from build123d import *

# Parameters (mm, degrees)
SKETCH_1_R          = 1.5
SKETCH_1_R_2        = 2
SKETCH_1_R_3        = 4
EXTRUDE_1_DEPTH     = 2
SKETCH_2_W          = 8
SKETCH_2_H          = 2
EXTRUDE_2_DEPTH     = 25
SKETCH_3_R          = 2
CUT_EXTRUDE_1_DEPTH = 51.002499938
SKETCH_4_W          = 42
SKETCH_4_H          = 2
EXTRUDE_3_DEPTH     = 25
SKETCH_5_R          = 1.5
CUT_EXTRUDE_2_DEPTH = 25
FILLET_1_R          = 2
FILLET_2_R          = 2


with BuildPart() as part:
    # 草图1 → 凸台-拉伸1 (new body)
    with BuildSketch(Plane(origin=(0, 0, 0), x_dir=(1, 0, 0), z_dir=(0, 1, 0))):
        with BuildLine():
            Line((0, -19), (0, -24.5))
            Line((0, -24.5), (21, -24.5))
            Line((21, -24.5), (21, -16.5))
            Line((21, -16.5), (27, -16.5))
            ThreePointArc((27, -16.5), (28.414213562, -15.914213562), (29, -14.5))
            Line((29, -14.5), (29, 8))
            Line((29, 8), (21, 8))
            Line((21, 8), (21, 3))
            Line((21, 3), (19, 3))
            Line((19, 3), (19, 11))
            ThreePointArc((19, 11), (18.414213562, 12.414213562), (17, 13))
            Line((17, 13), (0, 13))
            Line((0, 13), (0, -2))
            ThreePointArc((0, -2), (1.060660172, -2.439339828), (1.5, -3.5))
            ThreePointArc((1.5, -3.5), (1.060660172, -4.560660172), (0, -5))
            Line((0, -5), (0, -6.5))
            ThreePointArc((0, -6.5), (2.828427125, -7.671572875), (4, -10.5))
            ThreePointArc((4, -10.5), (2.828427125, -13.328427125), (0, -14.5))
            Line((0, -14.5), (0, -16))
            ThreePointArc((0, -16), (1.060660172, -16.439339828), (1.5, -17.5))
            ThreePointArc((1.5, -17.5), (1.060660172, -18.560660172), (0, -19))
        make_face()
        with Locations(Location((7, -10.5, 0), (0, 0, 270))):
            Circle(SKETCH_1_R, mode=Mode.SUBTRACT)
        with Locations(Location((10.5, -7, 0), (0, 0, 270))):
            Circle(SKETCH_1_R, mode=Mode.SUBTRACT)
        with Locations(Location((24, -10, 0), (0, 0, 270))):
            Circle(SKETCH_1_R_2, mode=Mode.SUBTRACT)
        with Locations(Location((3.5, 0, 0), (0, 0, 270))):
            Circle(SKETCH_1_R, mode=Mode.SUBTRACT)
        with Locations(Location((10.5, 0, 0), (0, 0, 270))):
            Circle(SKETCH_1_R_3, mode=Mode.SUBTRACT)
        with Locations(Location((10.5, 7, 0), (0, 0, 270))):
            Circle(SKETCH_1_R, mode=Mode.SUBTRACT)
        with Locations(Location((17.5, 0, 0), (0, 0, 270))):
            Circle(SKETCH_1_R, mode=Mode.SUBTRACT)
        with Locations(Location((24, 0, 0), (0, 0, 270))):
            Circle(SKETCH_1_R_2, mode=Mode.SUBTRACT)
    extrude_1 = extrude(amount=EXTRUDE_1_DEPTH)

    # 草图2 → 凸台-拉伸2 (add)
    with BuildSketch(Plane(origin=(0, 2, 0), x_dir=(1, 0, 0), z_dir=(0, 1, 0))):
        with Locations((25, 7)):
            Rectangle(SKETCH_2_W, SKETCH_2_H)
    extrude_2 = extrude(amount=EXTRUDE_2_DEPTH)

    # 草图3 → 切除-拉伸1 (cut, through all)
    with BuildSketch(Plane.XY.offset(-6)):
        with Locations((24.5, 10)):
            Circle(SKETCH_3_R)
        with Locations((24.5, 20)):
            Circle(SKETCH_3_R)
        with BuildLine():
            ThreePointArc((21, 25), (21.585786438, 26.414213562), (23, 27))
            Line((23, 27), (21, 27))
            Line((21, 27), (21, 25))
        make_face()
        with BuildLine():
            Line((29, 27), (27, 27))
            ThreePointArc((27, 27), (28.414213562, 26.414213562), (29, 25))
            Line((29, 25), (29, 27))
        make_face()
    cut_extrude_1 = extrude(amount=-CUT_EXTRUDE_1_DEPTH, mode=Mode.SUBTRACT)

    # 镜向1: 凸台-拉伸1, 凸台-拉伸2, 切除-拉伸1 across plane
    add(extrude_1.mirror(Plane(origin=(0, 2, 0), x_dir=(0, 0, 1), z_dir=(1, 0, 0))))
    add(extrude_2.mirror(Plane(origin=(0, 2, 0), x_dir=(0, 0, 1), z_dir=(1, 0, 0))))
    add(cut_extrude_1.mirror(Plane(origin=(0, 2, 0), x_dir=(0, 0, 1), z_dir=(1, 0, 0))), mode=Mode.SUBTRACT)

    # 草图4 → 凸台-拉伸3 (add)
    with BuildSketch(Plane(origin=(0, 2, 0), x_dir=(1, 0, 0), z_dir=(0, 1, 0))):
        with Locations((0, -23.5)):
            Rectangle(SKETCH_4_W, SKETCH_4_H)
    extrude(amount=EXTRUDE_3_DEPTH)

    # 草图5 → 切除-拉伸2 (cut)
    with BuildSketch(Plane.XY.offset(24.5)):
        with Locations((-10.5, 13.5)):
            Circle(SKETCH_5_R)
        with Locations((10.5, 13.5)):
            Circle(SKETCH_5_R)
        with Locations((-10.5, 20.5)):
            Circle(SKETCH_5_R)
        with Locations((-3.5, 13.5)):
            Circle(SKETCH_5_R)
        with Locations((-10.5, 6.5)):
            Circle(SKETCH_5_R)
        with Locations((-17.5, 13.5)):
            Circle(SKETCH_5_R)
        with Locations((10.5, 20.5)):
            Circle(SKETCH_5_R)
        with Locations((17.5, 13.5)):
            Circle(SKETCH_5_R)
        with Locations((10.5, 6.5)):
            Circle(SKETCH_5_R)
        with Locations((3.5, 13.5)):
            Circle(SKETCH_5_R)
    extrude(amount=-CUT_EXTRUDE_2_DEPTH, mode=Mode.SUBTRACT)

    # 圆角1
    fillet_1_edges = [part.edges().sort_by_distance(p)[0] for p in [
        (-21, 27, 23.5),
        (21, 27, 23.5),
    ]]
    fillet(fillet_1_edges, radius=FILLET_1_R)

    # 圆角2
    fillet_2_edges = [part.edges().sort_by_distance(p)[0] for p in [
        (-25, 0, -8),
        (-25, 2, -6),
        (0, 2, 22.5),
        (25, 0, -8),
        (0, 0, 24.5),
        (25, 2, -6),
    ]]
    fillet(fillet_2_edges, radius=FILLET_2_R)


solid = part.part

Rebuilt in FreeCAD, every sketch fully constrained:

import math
import FreeCAD as App
import Part
import Sketcher
from FreeCAD import Vector
Q = App.Units.Quantity


def edges_at(feature, points):
    """Names of the edges that pass closest to the given points."""
    edges = feature.Shape.Edges
    near = lambda p: min(range(len(edges)), key=lambda i: edges[i].distToShape(Part.Vertex(*p))[0])
    return sorted({f"Edge{near(p) + 1}" for p in points})

doc = App.newDocument("Part")
params = doc.addObject("Spreadsheet::Sheet", "Params")
for row, (alias, value) in enumerate([
    ("sketch1_diameter", "3 mm"),
    ("sketch1_diameter2", "4 mm"),
    ("sketch1_diameter3", "8 mm"),
    ("sketch1_width", "21 mm"),
    ("sketch1_width2", "6 mm"),
    ("pad1_length", "2 mm"),
    ("sketch2_width", "8 mm"),
    ("sketch2_height", "2 mm"),
    ("pad2_length", "25 mm"),
    ("sketch3_diameter", "4 mm"),
    ("sketch4_width", "42 mm"),
    ("sketch4_height", "2 mm"),
    ("pad3_length", "25 mm"),
    ("sketch5_diameter", "3 mm"),
    ("pocket2_length", "25 mm"),
    ("fillet_radius", "2 mm"),
    ("fillet2_radius", "2 mm"),
], start=1):
    params.set(f"A{row}", alias)
    params.set(f"B{row}", "=" + value)
    params.setAlias(f"B{row}", alias)

body = doc.addObject("PartDesign::Body", "Body")

# Sketch on XZ plane
sketch1 = body.newObject("Sketcher::SketchObject", "Sketch")
sketch1.AttachmentSupport = (doc.getObject("XZ_Plane"), [""])
sketch1.MapMode = "FlatFace"
sketch1.addGeometry([
    Part.LineSegment(Vector(0, 19, 0), Vector(0, 24.5, 0)),  # 0
    Part.LineSegment(Vector(0, 24.5, 0), Vector(21, 24.5, 0)),  # 1
    Part.LineSegment(Vector(21, 24.5, 0), Vector(21, 16.5, 0)),  # 2
    Part.LineSegment(Vector(21, 16.5, 0), Vector(27, 16.5, 0)),  # 3
    Part.ArcOfCircle(Part.Circle(Vector(27, 14.5, 0), Vector(0, 0, 1), 2), math.radians(0), math.radians(90)),  # 4
    Part.LineSegment(Vector(29, 14.5, 0), Vector(29, -8, 0)),  # 5
    Part.LineSegment(Vector(29, -8, 0), Vector(21, -8, 0)),  # 6
    Part.LineSegment(Vector(21, -8, 0), Vector(21, -3, 0)),  # 7
    Part.LineSegment(Vector(21, -3, 0), Vector(19, -3, 0)),  # 8
    Part.LineSegment(Vector(19, -3, 0), Vector(19, -11, 0)),  # 9
    Part.ArcOfCircle(Part.Circle(Vector(17, -11, 0), Vector(0, 0, 1), 2), math.radians(-90), math.radians(0)),  # 10
    Part.LineSegment(Vector(17, -13, 0), Vector(0, -13, 0)),  # 11
    Part.LineSegment(Vector(0, -13, 0), Vector(0, 2, 0)),  # 12
    Part.ArcOfCircle(Part.Circle(Vector(0, 3.5, 0), Vector(0, 0, 1), 1.5), math.radians(-90), math.radians(0)),  # 13
    Part.ArcOfCircle(Part.Circle(Vector(0, 3.5, 0), Vector(0, 0, 1), 1.5), math.radians(0), math.radians(90)),  # 14
    Part.LineSegment(Vector(0, 5, 0), Vector(0, 6.5, 0)),  # 15
    Part.ArcOfCircle(Part.Circle(Vector(0, 10.5, 0), Vector(0, 0, 1), 4), math.radians(-90), math.radians(0)),  # 16
    Part.ArcOfCircle(Part.Circle(Vector(0, 10.5, 0), Vector(0, 0, 1), 4), math.radians(0), math.radians(90)),  # 17
    Part.LineSegment(Vector(0, 14.5, 0), Vector(0, 16, 0)),  # 18
    Part.ArcOfCircle(Part.Circle(Vector(0, 17.5, 0), Vector(0, 0, 1), 1.5), math.radians(-90), math.radians(0)),  # 19
    Part.ArcOfCircle(Part.Circle(Vector(0, 17.5, 0), Vector(0, 0, 1), 1.5), math.radians(0), math.radians(90)),  # 20
    Part.Circle(Vector(7, 10.5, 0), Vector(0, 0, 1), 1.5),  # 21
    Part.Circle(Vector(10.5, 7, 0), Vector(0, 0, 1), 1.5),  # 22
    Part.Circle(Vector(24, 10, 0), Vector(0, 0, 1), 2),  # 23
    Part.Circle(Vector(3.5, 0, 0), Vector(0, 0, 1), 1.5),  # 24
    Part.Circle(Vector(10.5, 0, 0), Vector(0, 0, 1), 4),  # 25
    Part.Circle(Vector(10.5, -7, 0), Vector(0, 0, 1), 1.5),  # 26
    Part.Circle(Vector(17.5, 0, 0), Vector(0, 0, 1), 1.5),  # 27
    Part.Circle(Vector(24, 0, 0), Vector(0, 0, 1), 2),  # 28
], False)
sketch1.addConstraint([
    Sketcher.Constraint("Coincident", 0, 2, 1, 1),
    Sketcher.Constraint("Coincident", 1, 2, 2, 1),
    Sketcher.Constraint("Coincident", 2, 2, 3, 1),
    Sketcher.Constraint("Tangent", 3, 2, 4, 2),
    Sketcher.Constraint("Tangent", 4, 1, 5, 1),
    Sketcher.Constraint("Coincident", 5, 2, 6, 1),
    Sketcher.Constraint("Coincident", 6, 2, 7, 1),
    Sketcher.Constraint("Coincident", 7, 2, 8, 1),
    Sketcher.Constraint("Coincident", 8, 2, 9, 1),
    Sketcher.Constraint("Tangent", 9, 2, 10, 2),
    Sketcher.Constraint("Tangent", 10, 1, 11, 1),
    Sketcher.Constraint("Coincident", 11, 2, 12, 1),
    Sketcher.Constraint("Coincident", 12, 2, 13, 1),
    Sketcher.Constraint("Tangent", 13, 2, 14, 1),
    Sketcher.Constraint("Coincident", 14, 2, 15, 1),
    Sketcher.Constraint("Coincident", 15, 2, 16, 1),
    Sketcher.Constraint("Tangent", 16, 2, 17, 1),
    Sketcher.Constraint("Coincident", 17, 2, 18, 1),
    Sketcher.Constraint("Coincident", 18, 2, 19, 1),
    Sketcher.Constraint("Tangent", 19, 2, 20, 1),
    Sketcher.Constraint("Coincident", 20, 2, 0, 1),
    Sketcher.Constraint("Vertical", 0),
    Sketcher.Constraint("Horizontal", 1),
    Sketcher.Constraint("Vertical", 2),
    Sketcher.Constraint("Horizontal", 3),
    Sketcher.Constraint("Vertical", 5),
    Sketcher.Constraint("Horizontal", 6),
    Sketcher.Constraint("Vertical", 7),
    Sketcher.Constraint("Horizontal", 8),
    Sketcher.Constraint("Vertical", 9),
    Sketcher.Constraint("Horizontal", 11),
    Sketcher.Constraint("Vertical", 12),
    Sketcher.Constraint("Vertical", 15),
    Sketcher.Constraint("Vertical", 18),
    Sketcher.Constraint("Equal", 4, 10),
    Sketcher.Constraint("Equal", 13, 14),
    Sketcher.Constraint("Equal", 16, 17),
    Sketcher.Constraint("Equal", 14, 19),
    Sketcher.Constraint("Equal", 19, 20),
    Sketcher.Constraint("Equal", 20, 21),
    Sketcher.Constraint("Equal", 21, 22),
    Sketcher.Constraint("Equal", 10, 23),
    Sketcher.Constraint("Equal", 22, 24),
    Sketcher.Constraint("Equal", 17, 25),
    Sketcher.Constraint("Equal", 24, 26),
    Sketcher.Constraint("Equal", 26, 27),
    Sketcher.Constraint("Equal", 23, 28),
    Sketcher.Constraint("Symmetric", 22, 3, 26, 3, -1),
    Sketcher.Constraint("PointOnObject", 13, 3, -2),
    Sketcher.Constraint("PointOnObject", 16, 3, -2),
    Sketcher.Constraint("PointOnObject", 19, 3, -2),
    Sketcher.Constraint("PointOnObject", 24, 3, -1),
    Sketcher.Constraint("PointOnObject", 25, 3, -1),
    Sketcher.Constraint("PointOnObject", 27, 3, -1),
    Sketcher.Constraint("PointOnObject", 28, 3, -1),
    Sketcher.Constraint("PointOnObject", 0, 2, -2),
    Sketcher.Constraint("PointOnObject", 11, 2, -2),
    Sketcher.Constraint("PointOnObject", 14, 2, -2),
    Sketcher.Constraint("PointOnObject", 17, 2, -2),
    Sketcher.Constraint("Horizontal", 17, 3, 21, 3),
    Sketcher.Constraint("Horizontal", 14, 3, 13, 2),
    Sketcher.Constraint("Horizontal", 21, 3, 16, 2),
    Sketcher.Constraint("Horizontal", 4, 1, 17, 2),
    Sketcher.Constraint("Horizontal", 20, 3, 19, 2),
    Sketcher.Constraint("Vertical", 22, 3, 25, 3),
    Sketcher.Constraint("Vertical", 23, 3, 28, 3),
    Sketcher.Constraint("Vertical", 2, 2, 6, 2),
    Sketcher.Constraint("Equal", 6, 2),
    Sketcher.Constraint("Equal", 2, 9),
    Sketcher.Constraint("Equal", 15, 18),
    Sketcher.Constraint("Diameter", 21, Q("3 mm")),
    Sketcher.Constraint("Diameter", 23, Q("4 mm")),
    Sketcher.Constraint("Diameter", 25, Q("8 mm")),
    Sketcher.Constraint("DistanceX", 1, 1, 1, 2, Q("21 mm")),
    Sketcher.Constraint("DistanceX", 3, 1, 3, 2, Q("6 mm")),
    Sketcher.Constraint("DistanceX", 8, 2, 8, 1, Q("2 mm")),
    Sketcher.Constraint("DistanceY", 7, 1, 7, 2, Q("5 mm")),
    Sketcher.Constraint("DistanceY", 12, 1, 12, 2, Q("15 mm")),
    Sketcher.Constraint("DistanceY", 0, 1, 0, 2, Q("5.5 mm")),
    Sketcher.Constraint("DistanceY", 10, 3, -1, 1, Q("11 mm")),
    Sketcher.Constraint("DistanceX", -1, 1, 21, 3, Q("7 mm")),
    Sketcher.Constraint("DistanceY", -1, 1, 22, 3, Q("7 mm")),
    Sketcher.Constraint("DistanceX", -1, 1, 23, 3, Q("24 mm")),
    Sketcher.Constraint("DistanceY", -1, 1, 23, 3, Q("10 mm")),
    Sketcher.Constraint("DistanceX", 24, 3, 22, 3, Q("7 mm")),
    Sketcher.Constraint("DistanceX", 25, 3, 27, 3, Q("7 mm")),
    Sketcher.Constraint("DistanceX", 13, 2, 24, 3, Q("2 mm")),
])
sketch1.setExpression("Constraints[70]", "Params.sketch1_diameter")
sketch1.setExpression("Constraints[71]", "Params.sketch1_diameter2")
sketch1.setExpression("Constraints[72]", "Params.sketch1_diameter3")
sketch1.setExpression("Constraints[73]", "Params.sketch1_width")
sketch1.setExpression("Constraints[74]", "Params.sketch1_width2")
pad1 = body.newObject("PartDesign::Pad", "Pad")
pad1.Profile = sketch1
pad1.setExpression("Length", "Params.pad1_length")
pad1.Reversed = True

# Sketch on XZ plane
sketch2 = body.newObject("Sketcher::SketchObject", "Sketch001")
sketch2.AttachmentSupport = (doc.getObject("XZ_Plane"), [""])
sketch2.MapMode = "FlatFace"
sketch2.AttachmentOffset = App.Placement(Vector(0, 0, -2), App.Rotation())
sketch2.addGeometry([
    Part.LineSegment(Vector(21, -8, 0), Vector(21, -6, 0)),
    Part.LineSegment(Vector(21, -6, 0), Vector(29, -6, 0)),
    Part.LineSegment(Vector(29, -6, 0), Vector(29, -8, 0)),
    Part.LineSegment(Vector(29, -8, 0), Vector(21, -8, 0)),
], False)
sketch2.addConstraint([
    Sketcher.Constraint("Coincident", 0, 2, 1, 1),
    Sketcher.Constraint("Coincident", 1, 2, 2, 1),
    Sketcher.Constraint("Coincident", 2, 2, 3, 1),
    Sketcher.Constraint("Coincident", 3, 2, 0, 1),
    Sketcher.Constraint("Vertical", 0),
    Sketcher.Constraint("Horizontal", 1),
    Sketcher.Constraint("Vertical", 2),
    Sketcher.Constraint("Horizontal", 3),
    Sketcher.Constraint("DistanceX", 1, 1, 1, 2, Q("8 mm")),
    Sketcher.Constraint("DistanceY", 0, 1, 0, 2, Q("2 mm")),
    Sketcher.Constraint("DistanceX", -1, 1, 0, 2, Q("21 mm")),
    Sketcher.Constraint("DistanceY", 0, 2, -1, 1, Q("6 mm")),
])
sketch2.setExpression("Constraints[8]", "Params.sketch2_width")
sketch2.setExpression("Constraints[9]", "Params.sketch2_height")
pad2 = body.newObject("PartDesign::Pad", "Pad001")
pad2.Profile = sketch2
pad2.setExpression("Length", "Params.pad2_length")
pad2.Reversed = True

# Sketch on XY plane
sketch3 = body.newObject("Sketcher::SketchObject", "Sketch002")
sketch3.AttachmentSupport = (doc.getObject("XY_Plane"), [""])
sketch3.MapMode = "FlatFace"
sketch3.AttachmentOffset = App.Placement(Vector(0, 0, -6), App.Rotation())
sketch3.addGeometry([
    Part.Circle(Vector(24.5, 10, 0), Vector(0, 0, 1), 2),  # 0
    Part.Circle(Vector(24.5, 20, 0), Vector(0, 0, 1), 2),  # 1
    Part.ArcOfCircle(Part.Circle(Vector(23, 25, 0), Vector(0, 0, 1), 2), math.radians(90), math.radians(180)),  # 2
    Part.LineSegment(Vector(23, 27, 0), Vector(21, 27, 0)),  # 3
    Part.LineSegment(Vector(21, 27, 0), Vector(21, 25, 0)),  # 4
    Part.LineSegment(Vector(29, 27, 0), Vector(27, 27, 0)),  # 5
    Part.ArcOfCircle(Part.Circle(Vector(27, 25, 0), Vector(0, 0, 1), 2), math.radians(0), math.radians(90)),  # 6
    Part.LineSegment(Vector(29, 25, 0), Vector(29, 27, 0)),  # 7
], False)
sketch3.addConstraint([
    Sketcher.Constraint("Tangent", 2, 1, 3, 1),
    Sketcher.Constraint("Coincident", 3, 2, 4, 1),
    Sketcher.Constraint("Tangent", 4, 2, 2, 2),
    Sketcher.Constraint("Tangent", 5, 2, 6, 2),
    Sketcher.Constraint("Tangent", 6, 1, 7, 1),
    Sketcher.Constraint("Coincident", 7, 2, 5, 1),
    Sketcher.Constraint("Horizontal", 3),
    Sketcher.Constraint("Vertical", 4),
    Sketcher.Constraint("Horizontal", 5),
    Sketcher.Constraint("Vertical", 7),
    Sketcher.Constraint("Equal", 0, 1),
    Sketcher.Constraint("Equal", 1, 2),
    Sketcher.Constraint("Equal", 2, 6),
    Sketcher.Constraint("Horizontal", 2, 3, 6, 3),
    Sketcher.Constraint("Vertical", 0, 3, 1, 3),
    Sketcher.Constraint("Diameter", 0, Q("4 mm")),
    Sketcher.Constraint("DistanceY", -1, 1, 0, 3, Q("10 mm")),
    Sketcher.Constraint("DistanceY", -1, 1, 1, 3, Q("20 mm")),
    Sketcher.Constraint("DistanceX", -1, 1, 2, 3, Q("23 mm")),
    Sketcher.Constraint("DistanceY", -1, 1, 2, 3, Q("25 mm")),
    Sketcher.Constraint("DistanceX", -1, 1, 6, 3, Q("27 mm")),
    Sketcher.Constraint("DistanceX", -1, 1, 0, 3, Q("24.5 mm")),
])
sketch3.setExpression("Constraints[15]", "Params.sketch3_diameter")
pocket1 = body.newObject("PartDesign::Pocket", "Pocket")
pocket1.Profile = sketch3
pocket1.Type = "ThroughAll"
doc.recompute()

mirrored = body.newObject("PartDesign::Mirrored", "Mirrored")
mirrored.Originals = [pad1, pad2, pocket1]
mirrored.MirrorPlane = (doc.getObject("YZ_Plane"), [""])
body.Tip = mirrored

# Sketch on XZ plane
sketch4 = body.newObject("Sketcher::SketchObject", "Sketch003")
sketch4.AttachmentSupport = (doc.getObject("XZ_Plane"), [""])
sketch4.MapMode = "FlatFace"
sketch4.AttachmentOffset = App.Placement(Vector(0, 0, -2), App.Rotation())
sketch4.addGeometry([
    Part.LineSegment(Vector(-21, 22.5, 0), Vector(-21, 24.5, 0)),
    Part.LineSegment(Vector(-21, 24.5, 0), Vector(21, 24.5, 0)),
    Part.LineSegment(Vector(21, 24.5, 0), Vector(21, 22.5, 0)),
    Part.LineSegment(Vector(21, 22.5, 0), Vector(-21, 22.5, 0)),
], False)
sketch4.addConstraint([
    Sketcher.Constraint("Coincident", 0, 2, 1, 1),
    Sketcher.Constraint("Coincident", 1, 2, 2, 1),
    Sketcher.Constraint("Coincident", 2, 2, 3, 1),
    Sketcher.Constraint("Coincident", 3, 2, 0, 1),
    Sketcher.Constraint("Vertical", 0),
    Sketcher.Constraint("Horizontal", 1),
    Sketcher.Constraint("Vertical", 2),
    Sketcher.Constraint("Horizontal", 3),
    Sketcher.Constraint("DistanceX", 1, 1, 1, 2, Q("42 mm")),
    Sketcher.Constraint("DistanceY", 0, 1, 0, 2, Q("2 mm")),
    Sketcher.Constraint("DistanceX", 0, 2, -1, 1, Q("21 mm")),
    Sketcher.Constraint("DistanceY", -1, 1, 0, 2, Q("24.5 mm")),
])
sketch4.setExpression("Constraints[8]", "Params.sketch4_width")
sketch4.setExpression("Constraints[9]", "Params.sketch4_height")
pad3 = body.newObject("PartDesign::Pad", "Pad002")
pad3.Profile = sketch4
pad3.setExpression("Length", "Params.pad3_length")
pad3.Reversed = True

# Sketch on XY plane
sketch5 = body.newObject("Sketcher::SketchObject", "Sketch004")
sketch5.AttachmentSupport = (doc.getObject("XY_Plane"), [""])
sketch5.MapMode = "FlatFace"
sketch5.AttachmentOffset = App.Placement(Vector(0, 0, 24.5), App.Rotation())
sketch5.addGeometry([
    Part.Circle(Vector(-10.5, 13.5, 0), Vector(0, 0, 1), 1.5),  # 0
    Part.Circle(Vector(10.5, 13.5, 0), Vector(0, 0, 1), 1.5),  # 1
    Part.Circle(Vector(-10.5, 20.5, 0), Vector(0, 0, 1), 1.5),  # 2
    Part.Circle(Vector(-3.5, 13.5, 0), Vector(0, 0, 1), 1.5),  # 3
    Part.Circle(Vector(-10.5, 6.5, 0), Vector(0, 0, 1), 1.5),  # 4
    Part.Circle(Vector(-17.5, 13.5, 0), Vector(0, 0, 1), 1.5),  # 5
    Part.Circle(Vector(10.5, 20.5, 0), Vector(0, 0, 1), 1.5),  # 6
    Part.Circle(Vector(17.5, 13.5, 0), Vector(0, 0, 1), 1.5),  # 7
    Part.Circle(Vector(10.5, 6.5, 0), Vector(0, 0, 1), 1.5),  # 8
    Part.Circle(Vector(3.5, 13.5, 0), Vector(0, 0, 1), 1.5),  # 9
], False)
sketch5.addConstraint([
    Sketcher.Constraint("Equal", 0, 1),
    Sketcher.Constraint("Equal", 1, 2),
    Sketcher.Constraint("Equal", 2, 3),
    Sketcher.Constraint("Equal", 3, 4),
    Sketcher.Constraint("Equal", 4, 5),
    Sketcher.Constraint("Equal", 5, 6),
    Sketcher.Constraint("Equal", 6, 7),
    Sketcher.Constraint("Equal", 7, 8),
    Sketcher.Constraint("Equal", 8, 9),
    Sketcher.Constraint("Symmetric", 0, 3, 1, 3, -2),
    Sketcher.Constraint("Symmetric", 2, 3, 6, 3, -2),
    Sketcher.Constraint("Symmetric", 5, 3, 7, 3, -2),
    Sketcher.Constraint("Symmetric", 4, 3, 8, 3, -2),
    Sketcher.Constraint("Symmetric", 3, 3, 9, 3, -2),
    Sketcher.Constraint("Horizontal", 1, 3, 3, 3),
    Sketcher.Constraint("Horizontal", 3, 3, 5, 3),
    Sketcher.Constraint("Vertical", 0, 3, 2, 3),
    Sketcher.Constraint("Vertical", 2, 3, 4, 3),
    Sketcher.Constraint("Diameter", 0, Q("3 mm")),
    Sketcher.Constraint("DistanceX", 0, 3, 1, 3, Q("21 mm")),
    Sketcher.Constraint("DistanceY", 0, 3, 2, 3, Q("7 mm")),
    Sketcher.Constraint("DistanceX", 0, 3, 3, 3, Q("7 mm")),
    Sketcher.Constraint("DistanceY", 4, 3, 0, 3, Q("7 mm")),
    Sketcher.Constraint("DistanceX", 5, 3, 0, 3, Q("7 mm")),
    Sketcher.Constraint("DistanceY", -1, 1, 0, 3, Q("13.5 mm")),
])
sketch5.setExpression("Constraints[18]", "Params.sketch5_diameter")
pocket2 = body.newObject("PartDesign::Pocket", "Pocket001")
pocket2.Profile = sketch5
pocket2.setExpression("Length", "Params.pocket2_length")
doc.recompute()

fillet = body.newObject("PartDesign::Fillet", "Fillet")
fillet.Base = (pocket2, edges_at(pocket2, [(-21, 27, 23.5), (21, 27, 23.5)]))
fillet.setExpression("Radius", "Params.fillet_radius")
doc.recompute()

fillet2 = body.newObject("PartDesign::Fillet", "Fillet001")
fillet2.Base = (fillet, edges_at(fillet, [
    (-25, 0, -8),
    (-25, 2, -6),
    (0, 2, 22.5),
    (25, 0, -8),
    (0, 0, 24.5),
    (25, 2, -6),
]))
fillet2.setExpression("Radius", "Params.fillet2_radius")

doc.recompute()
